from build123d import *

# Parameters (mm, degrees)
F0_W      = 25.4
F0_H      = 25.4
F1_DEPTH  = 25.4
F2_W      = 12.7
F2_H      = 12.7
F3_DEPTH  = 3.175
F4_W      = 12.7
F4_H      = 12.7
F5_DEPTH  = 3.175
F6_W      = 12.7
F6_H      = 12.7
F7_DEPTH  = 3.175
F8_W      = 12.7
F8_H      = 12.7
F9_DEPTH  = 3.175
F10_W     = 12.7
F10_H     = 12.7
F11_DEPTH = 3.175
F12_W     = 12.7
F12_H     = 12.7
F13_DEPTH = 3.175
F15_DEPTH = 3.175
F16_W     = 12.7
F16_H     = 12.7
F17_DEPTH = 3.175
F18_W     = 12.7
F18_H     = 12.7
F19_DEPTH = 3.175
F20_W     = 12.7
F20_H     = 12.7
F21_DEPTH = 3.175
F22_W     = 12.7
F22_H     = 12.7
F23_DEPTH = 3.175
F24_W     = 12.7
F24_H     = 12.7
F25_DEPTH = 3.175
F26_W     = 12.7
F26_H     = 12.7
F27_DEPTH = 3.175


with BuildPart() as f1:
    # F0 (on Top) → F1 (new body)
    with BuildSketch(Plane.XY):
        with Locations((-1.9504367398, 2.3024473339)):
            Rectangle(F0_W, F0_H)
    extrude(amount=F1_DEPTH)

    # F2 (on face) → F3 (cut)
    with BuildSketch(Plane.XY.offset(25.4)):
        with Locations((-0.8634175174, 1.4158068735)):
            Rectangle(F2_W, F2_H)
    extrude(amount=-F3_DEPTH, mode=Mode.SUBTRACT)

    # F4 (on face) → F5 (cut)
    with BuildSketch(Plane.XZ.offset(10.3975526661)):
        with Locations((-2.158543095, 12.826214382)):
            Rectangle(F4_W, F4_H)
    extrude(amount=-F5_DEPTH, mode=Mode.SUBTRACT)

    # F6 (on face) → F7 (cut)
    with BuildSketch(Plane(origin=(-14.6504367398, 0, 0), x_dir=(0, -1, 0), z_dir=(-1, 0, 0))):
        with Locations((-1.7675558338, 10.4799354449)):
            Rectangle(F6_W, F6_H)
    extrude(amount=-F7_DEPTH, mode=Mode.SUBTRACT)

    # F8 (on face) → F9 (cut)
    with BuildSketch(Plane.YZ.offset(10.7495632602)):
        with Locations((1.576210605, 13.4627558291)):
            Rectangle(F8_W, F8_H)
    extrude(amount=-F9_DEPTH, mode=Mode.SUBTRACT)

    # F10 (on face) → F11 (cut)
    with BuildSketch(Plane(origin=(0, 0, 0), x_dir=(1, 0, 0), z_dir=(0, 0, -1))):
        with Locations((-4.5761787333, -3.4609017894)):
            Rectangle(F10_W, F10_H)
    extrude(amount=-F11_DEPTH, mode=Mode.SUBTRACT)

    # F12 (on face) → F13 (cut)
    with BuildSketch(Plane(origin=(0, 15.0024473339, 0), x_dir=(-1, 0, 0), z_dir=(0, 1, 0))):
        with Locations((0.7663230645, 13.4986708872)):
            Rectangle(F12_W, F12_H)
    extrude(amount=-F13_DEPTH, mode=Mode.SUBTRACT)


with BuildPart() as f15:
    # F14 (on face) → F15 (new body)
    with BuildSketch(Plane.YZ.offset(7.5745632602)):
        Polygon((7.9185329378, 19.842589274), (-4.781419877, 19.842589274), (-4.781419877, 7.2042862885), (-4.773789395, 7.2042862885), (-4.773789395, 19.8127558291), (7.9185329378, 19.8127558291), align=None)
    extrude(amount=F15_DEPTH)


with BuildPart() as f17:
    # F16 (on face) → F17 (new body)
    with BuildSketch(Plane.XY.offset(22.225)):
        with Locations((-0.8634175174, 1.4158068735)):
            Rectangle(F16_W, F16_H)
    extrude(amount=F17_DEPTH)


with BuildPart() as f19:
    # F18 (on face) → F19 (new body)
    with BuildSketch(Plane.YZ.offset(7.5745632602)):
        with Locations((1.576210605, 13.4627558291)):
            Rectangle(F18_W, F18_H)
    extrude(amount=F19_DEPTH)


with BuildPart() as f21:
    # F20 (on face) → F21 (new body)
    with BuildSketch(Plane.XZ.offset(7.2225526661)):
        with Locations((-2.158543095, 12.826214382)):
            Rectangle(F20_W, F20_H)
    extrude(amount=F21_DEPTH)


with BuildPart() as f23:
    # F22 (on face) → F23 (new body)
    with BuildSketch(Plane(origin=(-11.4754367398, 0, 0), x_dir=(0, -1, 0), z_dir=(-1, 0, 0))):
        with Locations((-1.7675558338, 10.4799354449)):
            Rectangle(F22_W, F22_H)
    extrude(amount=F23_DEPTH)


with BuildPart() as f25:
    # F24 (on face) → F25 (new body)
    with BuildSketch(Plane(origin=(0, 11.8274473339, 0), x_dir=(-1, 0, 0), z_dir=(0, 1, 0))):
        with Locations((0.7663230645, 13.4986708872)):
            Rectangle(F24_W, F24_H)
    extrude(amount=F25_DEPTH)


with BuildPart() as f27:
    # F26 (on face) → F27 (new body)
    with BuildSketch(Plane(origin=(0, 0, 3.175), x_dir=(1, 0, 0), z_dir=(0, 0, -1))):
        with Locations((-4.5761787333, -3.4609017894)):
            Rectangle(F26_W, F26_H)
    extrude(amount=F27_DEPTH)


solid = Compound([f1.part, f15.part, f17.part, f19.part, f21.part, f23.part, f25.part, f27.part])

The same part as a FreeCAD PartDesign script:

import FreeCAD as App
import Part
import Sketcher
Q = App.Units.Quantity

doc = App.newDocument("Part")
body = doc.addObject("PartDesign::Body", "Body")

# Sketch on XY plane
sketch1 = body.newObject("Sketcher::SketchObject", "Sketch")
sketch1.AttachmentSupport = (doc.getObject("XY_Plane"), [""])
sketch1.MapMode = "FlatFace"
sketch1.addGeometry(Part.LineSegment(App.Vector(-14.650437, 15.002447, 0), App.Vector(-14.650437, -10.397553, 0)), False)
sketch1.addGeometry(Part.LineSegment(App.Vector(-14.650437, -10.397553, 0), App.Vector(10.749563, -10.397553, 0)), False)
sketch1.addGeometry(Part.LineSegment(App.Vector(10.749563, -10.397553, 0), App.Vector(10.749563, 15.002447, 0)), False)
sketch1.addGeometry(Part.LineSegment(App.Vector(10.749563, 15.002447, 0), App.Vector(-14.650437, 15.002447, 0)), False)
sketch1.addConstraint(Sketcher.Constraint("Coincident", 0, 2, 1, 1))
sketch1.addConstraint(Sketcher.Constraint("Coincident", 1, 2, 2, 1))
sketch1.addConstraint(Sketcher.Constraint("Coincident", 2, 2, 3, 1))
sketch1.addConstraint(Sketcher.Constraint("Coincident", 3, 2, 0, 1))
sketch1.addConstraint(Sketcher.Constraint("Vertical", 0))
sketch1.addConstraint(Sketcher.Constraint("Horizontal", 1))
sketch1.addConstraint(Sketcher.Constraint("Vertical", 2))
sketch1.addConstraint(Sketcher.Constraint("Horizontal", 3))
sketch1.addConstraint(Sketcher.Constraint("Equal", 3, 0))
sketch1.addConstraint(Sketcher.Constraint("DistanceX", 1, 1, 1, 2, Q("1 in")))
sketch1.addConstraint(Sketcher.Constraint("DistanceX", 0, 2, -1, 1, 14.650437))
sketch1.addConstraint(Sketcher.Constraint("DistanceY", 0, 2, -1, 1, 10.397553))
pad1 = body.newObject("PartDesign::Pad", "Pad")
pad1.Profile = sketch1
pad1.Length = Q("1 in")

# Sketch on XY plane
sketch2 = body.newObject("Sketcher::SketchObject", "Sketch001")
sketch2.AttachmentSupport = (doc.getObject("XY_Plane"), [""])
sketch2.MapMode = "FlatFace"
sketch2.AttachmentOffset = App.Placement(App.Vector(0, 0, 1 * 25.4), App.Rotation())
sketch2.addGeometry(Part.LineSegment(App.Vector(-7.213418, 7.765807, 0), App.Vector(-7.213418, -4.934193, 0)), False)
sketch2.addGeometry(Part.LineSegment(App.Vector(-7.213418, -4.934193, 0), App.Vector(5.486582, -4.934193, 0)), False)
sketch2.addGeometry(Part.LineSegment(App.Vector(5.486582, -4.934193, 0), App.Vector(5.486582, 7.765807, 0)), False)
sketch2.addGeometry(Part.LineSegment(App.Vector(5.486582, 7.765807, 0), App.Vector(-7.213418, 7.765807, 0)), False)
sketch2.addConstraint(Sketcher.Constraint("Coincident", 0, 2, 1, 1))
sketch2.addConstraint(Sketcher.Constraint("Coincident", 1, 2, 2, 1))
sketch2.addConstraint(Sketcher.Constraint("Coincident", 2, 2, 3, 1))
sketch2.addConstraint(Sketcher.Constraint("Coincident", 3, 2, 0, 1))
sketch2.addConstraint(Sketcher.Constraint("Vertical", 0))
sketch2.addConstraint(Sketcher.Constraint("Horizontal", 1))
sketch2.addConstraint(Sketcher.Constraint("Vertical", 2))
sketch2.addConstraint(Sketcher.Constraint("Horizontal", 3))
sketch2.addConstraint(Sketcher.Constraint("Equal", 3, 0))
sketch2.addConstraint(Sketcher.Constraint("DistanceX", 1, 1, 1, 2, Q("0.5 in")))
sketch2.addConstraint(Sketcher.Constraint("DistanceX", 0, 2, -1, 1, 7.213418))
sketch2.addConstraint(Sketcher.Constraint("DistanceY", 0, 2, -1, 1, 4.934193))
pocket1 = body.newObject("PartDesign::Pocket", "Pocket")
pocket1.Profile = sketch2
pocket1.Length = Q("0.125 in")

# Sketch on XZ plane
sketch3 = body.newObject("Sketcher::SketchObject", "Sketch002")
sketch3.AttachmentSupport = (doc.getObject("XZ_Plane"), [""])
sketch3.MapMode = "FlatFace"
sketch3.AttachmentOffset = App.Placement(App.Vector(0, 0, 10.397553), App.Rotation())
sketch3.addGeometry(Part.LineSegment(App.Vector(-8.508543, 19.176214, 0), App.Vector(-8.508543, 6.476214, 0)), False)
sketch3.addGeometry(Part.LineSegment(App.Vector(-8.508543, 6.476214, 0), App.Vector(4.191457, 6.476214, 0)), False)
sketch3.addGeometry(Part.LineSegment(App.Vector(4.191457, 6.476214, 0), App.Vector(4.191457, 19.176214, 0)), False)
sketch3.addGeometry(Part.LineSegment(App.Vector(4.191457, 19.176214, 0), App.Vector(-8.508543, 19.176214, 0)), False)
sketch3.addConstraint(Sketcher.Constraint("Coincident", 0, 2, 1, 1))
sketch3.addConstraint(Sketcher.Constraint("Coincident", 1, 2, 2, 1))
sketch3.addConstraint(Sketcher.Constraint("Coincident", 2, 2, 3, 1))
sketch3.addConstraint(Sketcher.Constraint("Coincident", 3, 2, 0, 1))
sketch3.addConstraint(Sketcher.Constraint("Vertical", 0))
sketch3.addConstraint(Sketcher.Constraint("Horizontal", 1))
sketch3.addConstraint(Sketcher.Constraint("Vertical", 2))
sketch3.addConstraint(Sketcher.Constraint("Horizontal", 3))
sketch3.addConstraint(Sketcher.Constraint("Equal", 3, 0))
sketch3.addConstraint(Sketcher.Constraint("DistanceX", 1, 1, 1, 2, Q("0.5 in")))
sketch3.addConstraint(Sketcher.Constraint("DistanceX", 0, 2, -1, 1, 8.508543))
sketch3.addConstraint(Sketcher.Constraint("DistanceY", -1, 1, 0, 2, 6.476214))
pocket2 = body.newObject("PartDesign::Pocket", "Pocket001")
pocket2.Profile = sketch3
pocket2.Length = Q("0.125 in")

# Sketch on YZ plane
sketch4 = body.newObject("Sketcher::SketchObject", "Sketch003")
sketch4.AttachmentSupport = (doc.getObject("YZ_Plane"), [""])
sketch4.MapMode = "FlatFace"
sketch4.AttachmentOffset = App.Placement(App.Vector(0, 0, -14.650437), App.Rotation())
sketch4.addGeometry(Part.LineSegment(App.Vector(8.117556, 16.829935, 0), App.Vector(8.117556, 4.129935, 0)), False)
sketch4.addGeometry(Part.LineSegment(App.Vector(8.117556, 4.129935, 0), App.Vector(-4.582444, 4.129935, 0)), False)
sketch4.addGeometry(Part.LineSegment(App.Vector(-4.582444, 4.129935, 0), App.Vector(-4.582444, 16.829935, 0)), False)
sketch4.addGeometry(Part.LineSegment(App.Vector(-4.582444, 16.829935, 0), App.Vector(8.117556, 16.829935, 0)), False)
sketch4.addConstraint(Sketcher.Constraint("Coincident", 0, 2, 1, 1))
sketch4.addConstraint(Sketcher.Constraint("Coincident", 1, 2, 2, 1))
sketch4.addConstraint(Sketcher.Constraint("Coincident", 2, 2, 3, 1))
sketch4.addConstraint(Sketcher.Constraint("Coincident", 3, 2, 0, 1))
sketch4.addConstraint(Sketcher.Constraint("Vertical", 0))
sketch4.addConstraint(Sketcher.Constraint("Horizontal", 1))
sketch4.addConstraint(Sketcher.Constraint("Vertical", 2))
sketch4.addConstraint(Sketcher.Constraint("Horizontal", 3))
sketch4.addConstraint(Sketcher.Constraint("Equal", 3, 0))
sketch4.addConstraint(Sketcher.Constraint("DistanceX", 1, 2, 1, 1, Q("0.5 in")))
sketch4.addConstraint(Sketcher.Constraint("DistanceX", -1, 1, 0, 2, 8.117556))
sketch4.addConstraint(Sketcher.Constraint("DistanceY", -1, 1, 0, 2, 4.129935))
pocket3 = body.newObject("PartDesign::Pocket", "Pocket002")
pocket3.Profile = sketch4
pocket3.Length = Q("0.125 in")
pocket3.Reversed = True

# Sketch on YZ plane
sketch5 = body.newObject("Sketcher::SketchObject", "Sketch004")
sketch5.AttachmentSupport = (doc.getObject("YZ_Plane"), [""])
sketch5.MapMode = "FlatFace"
sketch5.AttachmentOffset = App.Placement(App.Vector(0, 0, 10.749563), App.Rotation())
sketch5.addGeometry(Part.LineSegment(App.Vector(-4.773789, 19.812756, 0), App.Vector(-4.773789, 7.112756, 0)), False)
sketch5.addGeometry(Part.LineSegment(App.Vector(-4.773789, 7.112756, 0), App.Vector(7.926211, 7.112756, 0)), False)
sketch5.addGeometry(Part.LineSegment(App.Vector(7.926211, 7.112756, 0), App.Vector(7.926211, 19.812756, 0)), False)
sketch5.addGeometry(Part.LineSegment(App.Vector(7.926211, 19.812756, 0), App.Vector(-4.773789, 19.812756, 0)), False)
sketch5.addConstraint(Sketcher.Constraint("Coincident", 0, 2, 1, 1))
sketch5.addConstraint(Sketcher.Constraint("Coincident", 1, 2, 2, 1))
sketch5.addConstraint(Sketcher.Constraint("Coincident", 2, 2, 3, 1))
sketch5.addConstraint(Sketcher.Constraint("Coincident", 3, 2, 0, 1))
sketch5.addConstraint(Sketcher.Constraint("Vertical", 0))
sketch5.addConstraint(Sketcher.Constraint("Horizontal", 1))
sketch5.addConstraint(Sketcher.Constraint("Vertical", 2))
sketch5.addConstraint(Sketcher.Constraint("Horizontal", 3))
sketch5.addConstraint(Sketcher.Constraint("Equal", 3, 0))
sketch5.addConstraint(Sketcher.Constraint("DistanceX", 1, 1, 1, 2, Q("0.5 in")))
sketch5.addConstraint(Sketcher.Constraint("DistanceX", 0, 2, -1, 1, 4.773789))
sketch5.addConstraint(Sketcher.Constraint("DistanceY", -1, 1, 0, 2, 7.112756))
pocket4 = body.newObject("PartDesign::Pocket", "Pocket003")
pocket4.Profile = sketch5
pocket4.Length = Q("0.125 in")

# Sketch on XY plane
sketch6 = body.newObject("Sketcher::SketchObject", "Sketch005")
sketch6.AttachmentSupport = (doc.getObject("XY_Plane"), [""])
sketch6.MapMode = "FlatFace"
sketch6.addGeometry(Part.LineSegment(App.Vector(-10.926179, -2.889098, 0), App.Vector(-10.926179, 9.810902, 0)), False)
sketch6.addGeometry(Part.LineSegment(App.Vector(-10.926179, 9.810902, 0), App.Vector(1.773821, 9.810902, 0)), False)
sketch6.addGeometry(Part.LineSegment(App.Vector(1.773821, 9.810902, 0), App.Vector(1.773821, -2.889098, 0)), False)
sketch6.addGeometry(Part.LineSegment(App.Vector(1.773821, -2.889098, 0), App.Vector(-10.926179, -2.889098, 0)), False)
sketch6.addConstraint(Sketcher.Constraint("Coincident", 0, 2, 1, 1))
sketch6.addConstraint(Sketcher.Constraint("Coincident", 1, 2, 2, 1))
sketch6.addConstraint(Sketcher.Constraint("Coincident", 2, 2, 3, 1))
sketch6.addConstraint(Sketcher.Constraint("Coincident", 3, 2, 0, 1))
sketch6.addConstraint(Sketcher.Constraint("Vertical", 0))
sketch6.addConstraint(Sketcher.Constraint("Horizontal", 1))
sketch6.addConstraint(Sketcher.Constraint("Vertical", 2))
sketch6.addConstraint(Sketcher.Constraint("Horizontal", 3))
sketch6.addConstraint(Sketcher.Constraint("Equal", 3, 0))
sketch6.addConstraint(Sketcher.Constraint("DistanceX", 1, 1, 1, 2, Q("0.5 in")))
sketch6.addConstraint(Sketcher.Constraint("DistanceY", -1, 1, 0, 2, 9.810902))
sketch6.addConstraint(Sketcher.Constraint("DistanceX", 0, 2, -1, 1, 10.926179))
pocket5 = body.newObject("PartDesign::Pocket", "Pocket004")
pocket5.Profile = sketch6
pocket5.Length = Q("0.125 in")
pocket5.Reversed = True

# Sketch on XZ plane
sketch7 = body.newObject("Sketcher::SketchObject", "Sketch006")
sketch7.AttachmentSupport = (doc.getObject("XZ_Plane"), [""])
sketch7.MapMode = "FlatFace"
sketch7.AttachmentOffset = App.Placement(App.Vector(0, 0, -15.002447), App.Rotation())
sketch7.addGeometry(Part.LineSegment(App.Vector(5.583677, 19.848671, 0), App.Vector(5.583677, 7.148671, 0)), False)
sketch7.addGeometry(Part.LineSegment(App.Vector(5.583677, 7.148671, 0), App.Vector(-7.116323, 7.148671, 0)), False)
sketch7.addGeometry(Part.LineSegment(App.Vector(-7.116323, 7.148671, 0), App.Vector(-7.116323, 19.848671, 0)), False)
sketch7.addGeometry(Part.LineSegment(App.Vector(-7.116323, 19.848671, 0), App.Vector(5.583677, 19.848671, 0)), False)
sketch7.addConstraint(Sketcher.Constraint("Coincident", 0, 2, 1, 1))
sketch7.addConstraint(Sketcher.Constraint("Coincident", 1, 2, 2, 1))
sketch7.addConstraint(Sketcher.Constraint("Coincident", 2, 2, 3, 1))
sketch7.addConstraint(Sketcher.Constraint("Coincident", 3, 2, 0, 1))
sketch7.addConstraint(Sketcher.Constraint("Vertical", 0))
sketch7.addConstraint(Sketcher.Constraint("Horizontal", 1))
sketch7.addConstraint(Sketcher.Constraint("Vertical", 2))
sketch7.addConstraint(Sketcher.Constraint("Horizontal", 3))
sketch7.addConstraint(Sketcher.Constraint("Equal", 3, 0))
sketch7.addConstraint(Sketcher.Constraint("DistanceX", 1, 2, 1, 1, Q("0.5 in")))
sketch7.addConstraint(Sketcher.Constraint("DistanceY", -1, 1, 0, 2, 7.148671))
sketch7.addConstraint(Sketcher.Constraint("DistanceX", -1, 1, 0, 2, 5.583677))
pocket6 = body.newObject("PartDesign::Pocket", "Pocket005")
pocket6.Profile = sketch7
pocket6.Length = Q("0.125 in")
pocket6.Reversed = True
body2 = doc.addObject("PartDesign::Body", "Body001")

# Sketch on YZ plane
sketch8 = body2.newObject("Sketcher::SketchObject", "Sketch007")
sketch8.AttachmentSupport = (doc.getObject("YZ_Plane001"), [""])
sketch8.MapMode = "FlatFace"
sketch8.AttachmentOffset = App.Placement(App.Vector(0, 0, 7.574563), App.Rotation())
sketch8.addGeometry(Part.LineSegment(App.Vector(7.918533, 19.842589, 0), App.Vector(-4.78142, 19.842589, 0)), False)
sketch8.addGeometry(Part.LineSegment(App.Vector(-4.78142, 19.842589, 0), App.Vector(-4.78142, 7.204286, 0)), False)
sketch8.addGeometry(Part.LineSegment(App.Vector(-4.78142, 7.204286, 0), App.Vector(-4.773789, 7.204286, 0)), False)
sketch8.addGeometry(Part.LineSegment(App.Vector(-4.773789, 7.204286, 0), App.Vector(-4.773789, 19.812756, 0)), False)
sketch8.addGeometry(Part.LineSegment(App.Vector(-4.773789, 19.812756, 0), App.Vector(7.918533, 19.812756, 0)), False)
sketch8.addGeometry(Part.LineSegment(App.Vector(7.918533, 19.812756, 0), App.Vector(7.918533, 19.842589, 0)), False)
sketch8.addConstraint(Sketcher.Constraint("Coincident", 0, 2, 1, 1))
sketch8.addConstraint(Sketcher.Constraint("Coincident", 1, 2, 2, 1))
sketch8.addConstraint(Sketcher.Constraint("Coincident", 2, 2, 3, 1))
sketch8.addConstraint(Sketcher.Constraint("Coincident", 3, 2, 4, 1))
sketch8.addConstraint(Sketcher.Constraint("Coincident", 4, 2, 5, 1))
sketch8.addConstraint(Sketcher.Constraint("Coincident", 5, 2, 0, 1))
sketch8.addConstraint(Sketcher.Constraint("Horizontal", 0))
sketch8.addConstraint(Sketcher.Constraint("Vertical", 1))
sketch8.addConstraint(Sketcher.Constraint("Horizontal", 2))
sketch8.addConstraint(Sketcher.Constraint("Vertical", 3))
sketch8.addConstraint(Sketcher.Constraint("Horizontal", 4))
sketch8.addConstraint(Sketcher.Constraint("Vertical", 5))
sketch8.addConstraint(Sketcher.Constraint("DistanceX", 2, 1, 2, 2, 0.00763))
sketch8.addConstraint(Sketcher.Constraint("DistanceY", 3, 1, 3, 2, 12.60847))
sketch8.addConstraint(Sketcher.Constraint("DistanceX", 0, 2, 0, 1, 12.699953))
sketch8.addConstraint(Sketcher.Constraint("DistanceY", 1, 2, 1, 1, 12.638303))
sketch8.addConstraint(Sketcher.Constraint("DistanceX", 0, 2, -1, 1, 4.78142))
sketch8.addConstraint(Sketcher.Constraint("DistanceY", -1, 1, 0, 2, 19.842589))
pad2 = body2.newObject("PartDesign::Pad", "Pad001")
pad2.Profile = sketch8
pad2.Length = Q("0.125 in")
body3 = doc.addObject("PartDesign::Body", "Body002")

# Sketch on XY plane
sketch9 = body3.newObject("Sketcher::SketchObject", "Sketch008")
sketch9.AttachmentSupport = (doc.getObject("XY_Plane002"), [""])
sketch9.MapMode = "FlatFace"
sketch9.AttachmentOffset = App.Placement(App.Vector(0, 0, 0.875 * 25.4), App.Rotation())
sketch9.addGeometry(Part.LineSegment(App.Vector(-7.213418, 7.765807, 0), App.Vector(-7.213418, -4.934193, 0)), False)
sketch9.addGeometry(Part.LineSegment(App.Vector(-7.213418, -4.934193, 0), App.Vector(5.486582, -4.934193, 0)), False)
sketch9.addGeometry(Part.LineSegment(App.Vector(5.486582, -4.934193, 0), App.Vector(5.486582, 7.765807, 0)), False)
sketch9.addGeometry(Part.LineSegment(App.Vector(5.486582, 7.765807, 0), App.Vector(-7.213418, 7.765807, 0)), False)
sketch9.addConstraint(Sketcher.Constraint("Coincident", 0, 2, 1, 1))
sketch9.addConstraint(Sketcher.Constraint("Coincident", 1, 2, 2, 1))
sketch9.addConstraint(Sketcher.Constraint("Coincident", 2, 2, 3, 1))
sketch9.addConstraint(Sketcher.Constraint("Coincident", 3, 2, 0, 1))
sketch9.addConstraint(Sketcher.Constraint("Vertical", 0))
sketch9.addConstraint(Sketcher.Constraint("Horizontal", 1))
sketch9.addConstraint(Sketcher.Constraint("Vertical", 2))
sketch9.addConstraint(Sketcher.Constraint("Horizontal", 3))
sketch9.addConstraint(Sketcher.Constraint("Equal", 3, 0))
sketch9.addConstraint(Sketcher.Constraint("DistanceX", 1, 1, 1, 2, Q("0.5 in")))
sketch9.addConstraint(Sketcher.Constraint("DistanceX", 0, 2, -1, 1, 7.213418))
sketch9.addConstraint(Sketcher.Constraint("DistanceY", 0, 2, -1, 1, 4.934193))
pad3 = body3.newObject("PartDesign::Pad", "Pad002")
pad3.Profile = sketch9
pad3.Length = Q("0.125 in")
body4 = doc.addObject("PartDesign::Body", "Body003")

# Sketch on YZ plane
sketch10 = body4.newObject("Sketcher::SketchObject", "Sketch009")
sketch10.AttachmentSupport = (doc.getObject("YZ_Plane003"), [""])
sketch10.MapMode = "FlatFace"
sketch10.AttachmentOffset = App.Placement(App.Vector(0, 0, 7.574563), App.Rotation())
sketch10.addGeometry(Part.LineSegment(App.Vector(-4.773789, 19.812756, 0), App.Vector(-4.773789, 7.112756, 0)), False)
sketch10.addGeometry(Part.LineSegment(App.Vector(-4.773789, 7.112756, 0), App.Vector(7.926211, 7.112756, 0)), False)
sketch10.addGeometry(Part.LineSegment(App.Vector(7.926211, 7.112756, 0), App.Vector(7.926211, 19.812756, 0)), False)
sketch10.addGeometry(Part.LineSegment(App.Vector(7.926211, 19.812756, 0), App.Vector(-4.773789, 19.812756, 0)), False)
sketch10.addConstraint(Sketcher.Constraint("Coincident", 0, 2, 1, 1))
sketch10.addConstraint(Sketcher.Constraint("Coincident", 1, 2, 2, 1))
sketch10.addConstraint(Sketcher.Constraint("Coincident", 2, 2, 3, 1))
sketch10.addConstraint(Sketcher.Constraint("Coincident", 3, 2, 0, 1))
sketch10.addConstraint(Sketcher.Constraint("Vertical", 0))
sketch10.addConstraint(Sketcher.Constraint("Horizontal", 1))
sketch10.addConstraint(Sketcher.Constraint("Vertical", 2))
sketch10.addConstraint(Sketcher.Constraint("Horizontal", 3))
sketch10.addConstraint(Sketcher.Constraint("Equal", 3, 0))
sketch10.addConstraint(Sketcher.Constraint("DistanceX", 1, 1, 1, 2, Q("0.5 in")))
sketch10.addConstraint(Sketcher.Constraint("DistanceX", 0, 2, -1, 1, 4.773789))
sketch10.addConstraint(Sketcher.Constraint("DistanceY", -1, 1, 0, 2, 7.112756))
pad4 = body4.newObject("PartDesign::Pad", "Pad003")
pad4.Profile = sketch10
pad4.Length = Q("0.125 in")
body5 = doc.addObject("PartDesign::Body", "Body004")

# Sketch on XZ plane
sketch11 = body5.newObject("Sketcher::SketchObject", "Sketch010")
sketch11.AttachmentSupport = (doc.getObject("XZ_Plane004"), [""])
sketch11.MapMode = "FlatFace"
sketch11.AttachmentOffset = App.Placement(App.Vector(0, 0, 7.222553), App.Rotation())
sketch11.addGeometry(Part.LineSegment(App.Vector(-8.508543, 19.176214, 0), App.Vector(-8.508543, 6.476214, 0)), False)
sketch11.addGeometry(Part.LineSegment(App.Vector(-8.508543, 6.476214, 0), App.Vector(4.191457, 6.476214, 0)), False)
sketch11.addGeometry(Part.LineSegment(App.Vector(4.191457, 6.476214, 0), App.Vector(4.191457, 19.176214, 0)), False)
sketch11.addGeometry(Part.LineSegment(App.Vector(4.191457, 19.176214, 0), App.Vector(-8.508543, 19.176214, 0)), False)
sketch11.addConstraint(Sketcher.Constraint("Coincident", 0, 2, 1, 1))
sketch11.addConstraint(Sketcher.Constraint("Coincident", 1, 2, 2, 1))
sketch11.addConstraint(Sketcher.Constraint("Coincident", 2, 2, 3, 1))
sketch11.addConstraint(Sketcher.Constraint("Coincident", 3, 2, 0, 1))
sketch11.addConstraint(Sketcher.Constraint("Vertical", 0))
sketch11.addConstraint(Sketcher.Constraint("Horizontal", 1))
sketch11.addConstraint(Sketcher.Constraint("Vertical", 2))
sketch11.addConstraint(Sketcher.Constraint("Horizontal", 3))
sketch11.addConstraint(Sketcher.Constraint("Equal", 3, 0))
sketch11.addConstraint(Sketcher.Constraint("DistanceX", 1, 1, 1, 2, Q("0.5 in")))
sketch11.addConstraint(Sketcher.Constraint("DistanceX", 0, 2, -1, 1, 8.508543))
sketch11.addConstraint(Sketcher.Constraint("DistanceY", -1, 1, 0, 2, 6.476214))
pad5 = body5.newObject("PartDesign::Pad", "Pad004")
pad5.Profile = sketch11
pad5.Length = Q("0.125 in")
body6 = doc.addObject("PartDesign::Body", "Body005")

# Sketch on YZ plane
sketch12 = body6.newObject("Sketcher::SketchObject", "Sketch011")
sketch12.AttachmentSupport = (doc.getObject("YZ_Plane005"), [""])
sketch12.MapMode = "FlatFace"
sketch12.AttachmentOffset = App.Placement(App.Vector(0, 0, -11.475437), App.Rotation())
sketch12.addGeometry(Part.LineSegment(App.Vector(8.117556, 16.829935, 0), App.Vector(8.117556, 4.129935, 0)), False)
sketch12.addGeometry(Part.LineSegment(App.Vector(8.117556, 4.129935, 0), App.Vector(-4.582444, 4.129935, 0)), False)
sketch12.addGeometry(Part.LineSegment(App.Vector(-4.582444, 4.129935, 0), App.Vector(-4.582444, 16.829935, 0)), False)
sketch12.addGeometry(Part.LineSegment(App.Vector(-4.582444, 16.829935, 0), App.Vector(8.117556, 16.829935, 0)), False)
sketch12.addConstraint(Sketcher.Constraint("Coincident", 0, 2, 1, 1))
sketch12.addConstraint(Sketcher.Constraint("Coincident", 1, 2, 2, 1))
sketch12.addConstraint(Sketcher.Constraint("Coincident", 2, 2, 3, 1))
sketch12.addConstraint(Sketcher.Constraint("Coincident", 3, 2, 0, 1))
sketch12.addConstraint(Sketcher.Constraint("Vertical", 0))
sketch12.addConstraint(Sketcher.Constraint("Horizontal", 1))
sketch12.addConstraint(Sketcher.Constraint("Vertical", 2))
sketch12.addConstraint(Sketcher.Constraint("Horizontal", 3))
sketch12.addConstraint(Sketcher.Constraint("Equal", 3, 0))
sketch12.addConstraint(Sketcher.Constraint("DistanceX", 1, 2, 1, 1, Q("0.5 in")))
sketch12.addConstraint(Sketcher.Constraint("DistanceX", -1, 1, 0, 2, 8.117556))
sketch12.addConstraint(Sketcher.Constraint("DistanceY", -1, 1, 0, 2, 4.129935))
pad6 = body6.newObject("PartDesign::Pad", "Pad005")
pad6.Profile = sketch12
pad6.Length = Q("0.125 in")
pad6.Reversed = True
body7 = doc.addObject("PartDesign::Body", "Body006")

# Sketch on XZ plane
sketch13 = body7.newObject("Sketcher::SketchObject", "Sketch012")
sketch13.AttachmentSupport = (doc.getObject("XZ_Plane006"), [""])
sketch13.MapMode = "FlatFace"
sketch13.AttachmentOffset = App.Placement(App.Vector(0, 0, -11.827447), App.Rotation())
sketch13.addGeometry(Part.LineSegment(App.Vector(5.583677, 19.848671, 0), App.Vector(5.583677, 7.148671, 0)), False)
sketch13.addGeometry(Part.LineSegment(App.Vector(5.583677, 7.148671, 0), App.Vector(-7.116323, 7.148671, 0)), False)
sketch13.addGeometry(Part.LineSegment(App.Vector(-7.116323, 7.148671, 0), App.Vector(-7.116323, 19.848671, 0)), False)
sketch13.addGeometry(Part.LineSegment(App.Vector(-7.116323, 19.848671, 0), App.Vector(5.583677, 19.848671, 0)), False)
sketch13.addConstraint(Sketcher.Constraint("Coincident", 0, 2, 1, 1))
sketch13.addConstraint(Sketcher.Constraint("Coincident", 1, 2, 2, 1))
sketch13.addConstraint(Sketcher.Constraint("Coincident", 2, 2, 3, 1))
sketch13.addConstraint(Sketcher.Constraint("Coincident", 3, 2, 0, 1))
sketch13.addConstraint(Sketcher.Constraint("Vertical", 0))
sketch13.addConstraint(Sketcher.Constraint("Horizontal", 1))
sketch13.addConstraint(Sketcher.Constraint("Vertical", 2))
sketch13.addConstraint(Sketcher.Constraint("Horizontal", 3))
sketch13.addConstraint(Sketcher.Constraint("Equal", 3, 0))
sketch13.addConstraint(Sketcher.Constraint("DistanceX", 1, 2, 1, 1, Q("0.5 in")))
sketch13.addConstraint(Sketcher.Constraint("DistanceY", -1, 1, 0, 2, 7.148671))
sketch13.addConstraint(Sketcher.Constraint("DistanceX", -1, 1, 0, 2, 5.583677))
pad7 = body7.newObject("PartDesign::Pad", "Pad006")
pad7.Profile = sketch13
pad7.Length = Q("0.125 in")
pad7.Reversed = True
body8 = doc.addObject("PartDesign::Body", "Body007")

# Sketch on XY plane
sketch14 = body8.newObject("Sketcher::SketchObject", "Sketch013")
sketch14.AttachmentSupport = (doc.getObject("XY_Plane007"), [""])
sketch14.MapMode = "FlatFace"
sketch14.AttachmentOffset = App.Placement(App.Vector(0, 0, 0.125 * 25.4), App.Rotation())
sketch14.addGeometry(Part.LineSegment(App.Vector(-10.926179, -2.889098, 0), App.Vector(-10.926179, 9.810902, 0)), False)
sketch14.addGeometry(Part.LineSegment(App.Vector(-10.926179, 9.810902, 0), App.Vector(1.773821, 9.810902, 0)), False)
sketch14.addGeometry(Part.LineSegment(App.Vector(1.773821, 9.810902, 0), App.Vector(1.773821, -2.889098, 0)), False)
sketch14.addGeometry(Part.LineSegment(App.Vector(1.773821, -2.889098, 0), App.Vector(-10.926179, -2.889098, 0)), False)
sketch14.addConstraint(Sketcher.Constraint("Coincident", 0, 2, 1, 1))
sketch14.addConstraint(Sketcher.Constraint("Coincident", 1, 2, 2, 1))
sketch14.addConstraint(Sketcher.Constraint("Coincident", 2, 2, 3, 1))
sketch14.addConstraint(Sketcher.Constraint("Coincident", 3, 2, 0, 1))
sketch14.addConstraint(Sketcher.Constraint("Vertical", 0))
sketch14.addConstraint(Sketcher.Constraint("Horizontal", 1))
sketch14.addConstraint(Sketcher.Constraint("Vertical", 2))
sketch14.addConstraint(Sketcher.Constraint("Horizontal", 3))
sketch14.addConstraint(Sketcher.Constraint("Equal", 3, 0))
sketch14.addConstraint(Sketcher.Constraint("DistanceX", 1, 1, 1, 2, Q("0.5 in")))
sketch14.addConstraint(Sketcher.Constraint("DistanceY", -1, 1, 0, 2, 9.810902))
sketch14.addConstraint(Sketcher.Constraint("DistanceX", 0, 2, -1, 1, 10.926179))
pad8 = body8.newObject("PartDesign::Pad", "Pad007")
pad8.Profile = sketch14
pad8.Length = Q("0.125 in")
pad8.Reversed = True

doc.recompute()
